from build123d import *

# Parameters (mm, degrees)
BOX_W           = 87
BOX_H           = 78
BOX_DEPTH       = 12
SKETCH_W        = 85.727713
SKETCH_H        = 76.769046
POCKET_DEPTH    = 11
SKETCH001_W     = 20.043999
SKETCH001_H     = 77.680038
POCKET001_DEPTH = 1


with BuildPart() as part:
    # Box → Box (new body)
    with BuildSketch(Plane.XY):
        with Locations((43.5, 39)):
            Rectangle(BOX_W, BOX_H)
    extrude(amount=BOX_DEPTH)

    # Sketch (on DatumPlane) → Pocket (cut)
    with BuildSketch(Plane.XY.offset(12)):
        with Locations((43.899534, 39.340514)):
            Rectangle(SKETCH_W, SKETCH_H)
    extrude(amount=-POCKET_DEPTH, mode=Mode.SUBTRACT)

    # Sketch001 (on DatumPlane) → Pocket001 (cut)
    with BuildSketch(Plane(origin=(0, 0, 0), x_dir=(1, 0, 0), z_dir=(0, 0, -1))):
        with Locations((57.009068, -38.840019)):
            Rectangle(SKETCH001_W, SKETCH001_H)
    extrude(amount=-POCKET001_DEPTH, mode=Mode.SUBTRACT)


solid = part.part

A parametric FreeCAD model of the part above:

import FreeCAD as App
import Part
import Sketcher
from FreeCAD import Vector
Q = App.Units.Quantity


def add_polygon(sketch, points):
    """Adds a closed chain of lines whose ends are joined by coincident constraints."""
    first, n = sketch.GeometryCount, len(points)
    for a, b in zip(points, points[1:] + points[:1]):
        sketch.addGeometry(Part.LineSegment(App.Vector(*a, 0), App.Vector(*b, 0)), False)
    for i in range(n):
        sketch.addConstraint(Sketcher.Constraint("Coincident", first + i, 2, first + (i + 1) % n, 1))

doc = App.newDocument("Part")
body = doc.addObject("PartDesign::Body", "Body")

sketch1 = doc.addObject("Sketcher::SketchObject", "Sketch")
body.addObject(sketch1)
sketch1.AttachmentSupport = (doc.XY_Plane, [""])
sketch1.MapMode = "FlatFace"
add_polygon(sketch1, [(0, 78), (0, 0), (87, 0), (87, 78)])
sketch1.addConstraint([
    Sketcher.Constraint("Vertical", 0),
    Sketcher.Constraint("Horizontal", 1),
    Sketcher.Constraint("Vertical", 2),
    Sketcher.Constraint("Horizontal", 3),
    Sketcher.Constraint("Coincident", 0, 2, -1, 1),
    Sketcher.Constraint("DistanceX", 1, 1, 1, 2, Q("87 mm")),
    Sketcher.Constraint("DistanceY", 0, 2, 0, 1, Q("78 mm")),
])
pad1 = doc.addObject("PartDesign::Pad", "Pad")
body.addObject(pad1)
pad1.Profile = sketch1
pad1.Length = 12

sketch2 = doc.addObject("Sketcher::SketchObject", "Sketch001")
body.addObject(sketch2)
sketch2.AttachmentSupport = (doc.XY_Plane, [""])
sketch2.MapMode = "FlatFace"
sketch2.AttachmentOffset = App.Placement(Vector(0, 0, 12), App.Rotation())
add_polygon(sketch2, [(1, 78), (1, 1), (87, 1), (87, 78)])
sketch2.addConstraint([
    Sketcher.Constraint("Vertical", 0),
    Sketcher.Constraint("Horizontal", 1),
    Sketcher.Constraint("Vertical", 2),
    Sketcher.Constraint("Horizontal", 3),
    Sketcher.Constraint("DistanceX", 1, 1, 1, 2, Q("85.727713 mm")),
    Sketcher.Constraint("DistanceY", 0, 2, 0, 1, Q("76.769046 mm")),
    Sketcher.Constraint("DistanceY", -1, 1, 0, 2, Q("0.955991 mm")),
    Sketcher.Constraint("DistanceX", -1, 1, 1, 2, Q("86.76339 mm")),
])
pocket1 = doc.addObject("PartDesign::Pocket", "Pocket")
body.addObject(pocket1)
pocket1.Profile = sketch2
pocket1.Length = 11

sketch3 = doc.addObject("Sketcher::SketchObject", "Sketch002")
body.addObject(sketch3)
sketch3.AttachmentSupport = (doc.XY_Plane, [""])
sketch3.MapMode = "FlatFace"
add_polygon(sketch3, [(47, 0), (47, 78), (67, 78), (67, 0)])
sketch3.addConstraint([
    Sketcher.Constraint("Vertical", 0),
    Sketcher.Constraint("Horizontal", 1),
    Sketcher.Constraint("Vertical", 2),
    Sketcher.Constraint("Horizontal", 3),
    Sketcher.Constraint("PointOnObject", 2, 2, -1),
    Sketcher.Constraint("DistanceX", 1, 1, 1, 2, Q("20.043999 mm")),
    Sketcher.Constraint("DistanceY", 0, 1, 0, 2, Q("77.680038 mm")),
    Sketcher.Constraint("DistanceX", -1, 1, 0, 2, Q("46.987068 mm")),
])
pocket2 = doc.addObject("PartDesign::Pocket", "Pocket001")
body.addObject(pocket2)
pocket2.Profile = sketch3
pocket2.Length = 1
pocket2.Reversed = True

doc.recompute()
